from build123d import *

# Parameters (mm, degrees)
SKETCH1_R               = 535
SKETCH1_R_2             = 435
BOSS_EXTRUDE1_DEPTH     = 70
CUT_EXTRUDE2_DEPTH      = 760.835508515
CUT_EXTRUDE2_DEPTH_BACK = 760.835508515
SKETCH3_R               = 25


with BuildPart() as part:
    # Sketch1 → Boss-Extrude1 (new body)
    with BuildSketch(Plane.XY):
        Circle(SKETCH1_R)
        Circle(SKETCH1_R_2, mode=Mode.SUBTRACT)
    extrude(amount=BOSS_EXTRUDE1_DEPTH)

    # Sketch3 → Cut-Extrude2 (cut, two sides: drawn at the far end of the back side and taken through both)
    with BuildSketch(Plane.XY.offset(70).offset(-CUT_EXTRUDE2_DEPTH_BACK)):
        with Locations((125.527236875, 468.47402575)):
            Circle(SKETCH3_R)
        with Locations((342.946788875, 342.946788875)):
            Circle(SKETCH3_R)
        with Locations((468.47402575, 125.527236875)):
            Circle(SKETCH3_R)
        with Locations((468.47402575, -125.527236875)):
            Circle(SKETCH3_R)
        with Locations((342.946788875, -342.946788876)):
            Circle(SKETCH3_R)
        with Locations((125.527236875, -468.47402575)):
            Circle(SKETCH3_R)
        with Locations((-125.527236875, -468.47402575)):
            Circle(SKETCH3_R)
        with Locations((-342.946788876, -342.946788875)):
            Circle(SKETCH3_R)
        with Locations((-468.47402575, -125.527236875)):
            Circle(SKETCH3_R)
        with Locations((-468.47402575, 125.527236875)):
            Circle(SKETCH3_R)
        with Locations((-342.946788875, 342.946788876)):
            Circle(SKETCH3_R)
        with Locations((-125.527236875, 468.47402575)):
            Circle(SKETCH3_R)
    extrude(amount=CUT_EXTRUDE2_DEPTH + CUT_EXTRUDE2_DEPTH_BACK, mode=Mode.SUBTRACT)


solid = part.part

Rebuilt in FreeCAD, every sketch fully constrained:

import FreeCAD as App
import Part
import Sketcher
from FreeCAD import Vector

doc = App.newDocument("Part")
params = doc.addObject("Spreadsheet::Sheet", "Params")
for row, (alias, value) in enumerate([
    ("sketch1_diameter", "1070 mm"),
    ("sketch1_diameter2", "870 mm"),
    ("pad1_length", "70 mm"),
    ("sketch2_diameter", "50 mm"),
], start=1):
    params.set(f"A{row}", alias)
    params.set(f"B{row}", "=" + value)
    params.setAlias(f"B{row}", alias)

body = doc.addObject("PartDesign::Body", "Body")

# Sketch on XY plane
sketch1 = doc.addObject("Sketcher::SketchObject", "Sketch")
body.addObject(sketch1)
sketch1.AttachmentSupport = (doc.XY_Plane, [""])
sketch1.MapMode = "FlatFace"
sketch1.addGeometry([
    Part.Circle(Vector(0, 0, 0), Vector(0, 0, 1), 535),
    Part.Circle(Vector(0, 0, 0), Vector(0, 0, 1), 435),
], False)
sketch1.addConstraint([
    Sketcher.Constraint("Coincident", 0, 3, -1, 1),
    Sketcher.Constraint("Coincident", 1, 3, -1, 1),
    Sketcher.Constraint("Diameter", 0, 1070.0),
    Sketcher.Constraint("Diameter", 1, 870.0),
])
sketch1.setExpression("Constraints[2]", "Params.sketch1_diameter")
sketch1.setExpression("Constraints[3]", "Params.sketch1_diameter2")
pad1 = doc.addObject("PartDesign::Pad", "Pad")
body.addObject(pad1)
pad1.Profile = sketch1
pad1.setExpression("Length", "Params.pad1_length")

# Sketch on XY plane
sketch2 = doc.addObject("Sketcher::SketchObject", "Sketch001")
body.addObject(sketch2)
sketch2.AttachmentSupport = (doc.XY_Plane, [""])
sketch2.MapMode = "FlatFace"
sketch2.AttachmentOffset = App.Placement(Vector(0, 0, 70), App.Rotation())
sketch2.addGeometry([
    Part.Circle(Vector(125.527237, 468.474026, 0), Vector(0, 0, 1), 25),  # 0
    Part.Circle(Vector(342.946789, 342.946789, 0), Vector(0, 0, 1), 25),  # 1
    Part.Circle(Vector(468.474026, 125.527237, 0), Vector(0, 0, 1), 25),  # 2
    Part.Circle(Vector(468.474026, -125.527237, 0), Vector(0, 0, 1), 25),  # 3
    Part.Circle(Vector(342.946789, -342.946789, 0), Vector(0, 0, 1), 25),  # 4
    Part.Circle(Vector(125.527237, -468.474026, 0), Vector(0, 0, 1), 25),  # 5
    Part.Circle(Vector(-125.527237, -468.474026, 0), Vector(0, 0, 1), 25),  # 6
    Part.Circle(Vector(-342.946789, -342.946789, 0), Vector(0, 0, 1), 25),  # 7
    Part.Circle(Vector(-468.474026, -125.527237, 0), Vector(0, 0, 1), 25),  # 8
    Part.Circle(Vector(-468.474026, 125.527237, 0), Vector(0, 0, 1), 25),  # 9
    Part.Circle(Vector(-342.946789, 342.946789, 0), Vector(0, 0, 1), 25),  # 10
    Part.Circle(Vector(-125.527237, 468.474026, 0), Vector(0, 0, 1), 25),  # 11
], False)
sketch2.addConstraint([
    Sketcher.Constraint("Equal", 0, 1),
    Sketcher.Constraint("Equal", 1, 2),
    Sketcher.Constraint("Equal", 2, 3),
    Sketcher.Constraint("Equal", 3, 4),
    Sketcher.Constraint("Equal", 4, 5),
    Sketcher.Constraint("Equal", 5, 6),
    Sketcher.Constraint("Equal", 6, 7),
    Sketcher.Constraint("Equal", 7, 8),
    Sketcher.Constraint("Equal", 8, 9),
    Sketcher.Constraint("Equal", 9, 10),
    Sketcher.Constraint("Equal", 10, 11),
    Sketcher.Constraint("Symmetric", 0, 3, 6, 3, -1, 1),
    Sketcher.Constraint("Symmetric", 1, 3, 7, 3, -1, 1),
    Sketcher.Constraint("Symmetric", 2, 3, 8, 3, -1, 1),
    Sketcher.Constraint("Symmetric", 3, 3, 9, 3, -1, 1),
    Sketcher.Constraint("Symmetric", 4, 3, 10, 3, -1, 1),
    Sketcher.Constraint("Symmetric", 5, 3, 11, 3, -1, 1),
    Sketcher.Constraint("Symmetric", 5, 3, 6, 3, -2),
    Sketcher.Constraint("Symmetric", 4, 3, 7, 3, -2),
    Sketcher.Constraint("Symmetric", 3, 3, 8, 3, -2),
    Sketcher.Constraint("Diameter", 0, 50.0),
    Sketcher.Constraint("DistanceX", -1, 1, 1, 3, 342.946789),
    Sketcher.Constraint("DistanceY", -1, 1, 1, 3, 342.946789),
    Sketcher.Constraint("DistanceX", 0, 3, 1, 3, 217.419552),
    Sketcher.Constraint("DistanceY", 2, 3, 1, 3, 217.419552),
    Sketcher.Constraint("DistanceX", 0, 3, 2, 3, 342.946789),
    Sketcher.Constraint("DistanceY", 2, 3, 0, 3, 342.946789),
])
sketch2.setExpression("Constraints[20]", "Params.sketch2_diameter")
pocket1 = doc.addObject("PartDesign::Pocket", "Pocket")
body.addObject(pocket1)
pocket1.Profile = sketch2
pocket1.Type = "ThroughAll"
pocket1.Midplane = True

doc.recompute()
